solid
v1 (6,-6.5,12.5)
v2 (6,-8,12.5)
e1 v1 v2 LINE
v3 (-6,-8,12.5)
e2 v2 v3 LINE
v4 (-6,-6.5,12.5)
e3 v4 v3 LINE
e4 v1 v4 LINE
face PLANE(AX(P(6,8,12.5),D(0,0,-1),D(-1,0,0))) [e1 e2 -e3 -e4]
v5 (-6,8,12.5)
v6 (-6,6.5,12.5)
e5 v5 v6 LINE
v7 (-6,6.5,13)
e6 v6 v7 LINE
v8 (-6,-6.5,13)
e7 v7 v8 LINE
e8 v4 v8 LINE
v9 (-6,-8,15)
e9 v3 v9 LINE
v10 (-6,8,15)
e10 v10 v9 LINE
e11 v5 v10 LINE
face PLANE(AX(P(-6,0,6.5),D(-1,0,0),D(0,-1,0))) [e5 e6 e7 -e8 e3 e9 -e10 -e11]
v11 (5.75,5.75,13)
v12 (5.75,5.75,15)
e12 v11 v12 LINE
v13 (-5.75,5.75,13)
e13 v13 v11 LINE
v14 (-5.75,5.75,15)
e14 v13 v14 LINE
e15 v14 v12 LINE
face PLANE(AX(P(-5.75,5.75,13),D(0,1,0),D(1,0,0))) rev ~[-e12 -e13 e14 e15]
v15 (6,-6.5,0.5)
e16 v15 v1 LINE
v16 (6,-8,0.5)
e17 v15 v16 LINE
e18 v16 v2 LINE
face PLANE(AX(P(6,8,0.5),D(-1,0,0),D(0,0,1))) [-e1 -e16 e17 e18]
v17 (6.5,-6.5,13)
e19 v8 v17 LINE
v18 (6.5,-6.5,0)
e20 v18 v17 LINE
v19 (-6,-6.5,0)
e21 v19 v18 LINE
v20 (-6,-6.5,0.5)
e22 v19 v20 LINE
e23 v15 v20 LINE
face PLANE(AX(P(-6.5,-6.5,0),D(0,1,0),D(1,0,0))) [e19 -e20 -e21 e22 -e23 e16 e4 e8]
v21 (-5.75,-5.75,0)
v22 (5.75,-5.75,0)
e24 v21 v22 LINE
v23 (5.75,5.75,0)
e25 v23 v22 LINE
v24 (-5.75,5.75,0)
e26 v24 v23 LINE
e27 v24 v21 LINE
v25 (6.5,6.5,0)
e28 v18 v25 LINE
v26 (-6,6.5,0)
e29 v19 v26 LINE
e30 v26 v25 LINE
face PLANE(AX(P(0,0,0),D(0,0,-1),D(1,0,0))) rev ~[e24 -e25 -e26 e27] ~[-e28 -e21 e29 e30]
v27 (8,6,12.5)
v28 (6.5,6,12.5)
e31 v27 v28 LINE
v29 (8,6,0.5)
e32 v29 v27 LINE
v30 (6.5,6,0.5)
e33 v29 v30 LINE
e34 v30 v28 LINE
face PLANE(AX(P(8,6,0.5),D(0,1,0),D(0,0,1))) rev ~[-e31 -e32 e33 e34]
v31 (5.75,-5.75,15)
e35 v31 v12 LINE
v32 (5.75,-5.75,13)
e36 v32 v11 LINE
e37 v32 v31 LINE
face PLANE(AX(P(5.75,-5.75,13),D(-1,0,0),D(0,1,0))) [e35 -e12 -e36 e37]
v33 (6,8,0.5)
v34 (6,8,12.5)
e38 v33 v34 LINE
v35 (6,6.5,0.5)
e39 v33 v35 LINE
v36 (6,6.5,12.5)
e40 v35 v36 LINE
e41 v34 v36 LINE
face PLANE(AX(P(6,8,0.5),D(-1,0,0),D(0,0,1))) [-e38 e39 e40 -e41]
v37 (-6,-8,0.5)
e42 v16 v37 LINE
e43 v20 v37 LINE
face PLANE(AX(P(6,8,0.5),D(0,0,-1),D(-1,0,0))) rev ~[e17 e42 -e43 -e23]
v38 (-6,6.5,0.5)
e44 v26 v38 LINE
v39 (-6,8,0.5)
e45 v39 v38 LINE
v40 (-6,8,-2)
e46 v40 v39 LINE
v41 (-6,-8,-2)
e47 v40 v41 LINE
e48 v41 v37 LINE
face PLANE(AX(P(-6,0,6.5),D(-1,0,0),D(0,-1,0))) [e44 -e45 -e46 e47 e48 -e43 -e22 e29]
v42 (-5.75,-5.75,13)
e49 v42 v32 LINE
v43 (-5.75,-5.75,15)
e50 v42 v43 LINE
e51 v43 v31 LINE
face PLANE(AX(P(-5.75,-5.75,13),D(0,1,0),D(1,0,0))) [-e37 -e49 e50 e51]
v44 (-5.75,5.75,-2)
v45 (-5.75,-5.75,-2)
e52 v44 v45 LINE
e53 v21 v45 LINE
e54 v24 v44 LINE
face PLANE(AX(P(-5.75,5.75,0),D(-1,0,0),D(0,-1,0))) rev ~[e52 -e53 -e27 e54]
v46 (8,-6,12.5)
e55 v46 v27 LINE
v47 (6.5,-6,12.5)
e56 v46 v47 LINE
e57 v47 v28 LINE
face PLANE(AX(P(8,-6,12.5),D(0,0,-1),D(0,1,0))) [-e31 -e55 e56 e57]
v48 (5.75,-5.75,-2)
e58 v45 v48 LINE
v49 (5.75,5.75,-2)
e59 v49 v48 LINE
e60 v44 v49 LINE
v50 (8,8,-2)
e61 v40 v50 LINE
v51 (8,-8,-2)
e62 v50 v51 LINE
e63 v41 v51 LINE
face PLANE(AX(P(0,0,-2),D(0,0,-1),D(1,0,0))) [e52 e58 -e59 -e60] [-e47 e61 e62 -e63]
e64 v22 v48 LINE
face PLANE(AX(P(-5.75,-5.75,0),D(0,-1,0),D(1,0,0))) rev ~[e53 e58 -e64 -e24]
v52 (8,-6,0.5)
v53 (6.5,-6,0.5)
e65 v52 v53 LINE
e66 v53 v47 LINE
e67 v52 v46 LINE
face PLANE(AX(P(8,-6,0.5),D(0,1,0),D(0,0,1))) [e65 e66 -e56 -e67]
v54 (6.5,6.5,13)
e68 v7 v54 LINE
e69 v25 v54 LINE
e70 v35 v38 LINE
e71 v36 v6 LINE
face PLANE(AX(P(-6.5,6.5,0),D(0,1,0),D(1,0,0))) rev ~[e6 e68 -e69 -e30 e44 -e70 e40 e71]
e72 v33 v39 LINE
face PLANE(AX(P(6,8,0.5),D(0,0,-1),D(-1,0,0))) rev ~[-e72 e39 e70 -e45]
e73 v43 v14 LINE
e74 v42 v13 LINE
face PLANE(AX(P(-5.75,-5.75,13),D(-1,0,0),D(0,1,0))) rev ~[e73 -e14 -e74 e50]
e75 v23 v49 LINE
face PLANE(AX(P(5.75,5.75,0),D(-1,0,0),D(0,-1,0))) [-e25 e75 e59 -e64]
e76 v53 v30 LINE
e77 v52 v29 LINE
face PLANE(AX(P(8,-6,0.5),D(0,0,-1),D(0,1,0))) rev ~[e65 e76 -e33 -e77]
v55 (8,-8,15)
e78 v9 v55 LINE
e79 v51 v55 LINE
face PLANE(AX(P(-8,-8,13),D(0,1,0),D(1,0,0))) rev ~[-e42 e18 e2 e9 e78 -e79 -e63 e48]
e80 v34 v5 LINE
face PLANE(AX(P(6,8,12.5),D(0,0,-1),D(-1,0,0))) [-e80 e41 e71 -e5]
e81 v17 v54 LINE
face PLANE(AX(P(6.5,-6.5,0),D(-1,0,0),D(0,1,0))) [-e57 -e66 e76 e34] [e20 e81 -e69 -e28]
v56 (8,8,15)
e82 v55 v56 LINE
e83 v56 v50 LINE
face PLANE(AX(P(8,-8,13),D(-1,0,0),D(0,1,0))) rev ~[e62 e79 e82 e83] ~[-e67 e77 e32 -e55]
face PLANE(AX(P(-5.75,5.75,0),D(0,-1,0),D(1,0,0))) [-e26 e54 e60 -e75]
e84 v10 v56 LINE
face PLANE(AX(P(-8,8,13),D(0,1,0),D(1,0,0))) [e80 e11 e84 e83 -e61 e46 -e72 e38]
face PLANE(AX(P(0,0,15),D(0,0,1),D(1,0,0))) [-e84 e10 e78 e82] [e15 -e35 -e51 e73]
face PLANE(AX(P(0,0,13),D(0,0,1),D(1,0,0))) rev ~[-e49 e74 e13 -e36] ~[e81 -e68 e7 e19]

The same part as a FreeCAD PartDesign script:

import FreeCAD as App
import Part
import Sketcher
from FreeCAD import Vector
Q = App.Units.Quantity

doc = App.newDocument("Part")
body = doc.addObject("PartDesign::Body", "Body")

sketch1 = doc.addObject("Sketcher::SketchObject", "Sketch")
body.addObject(sketch1)
sketch1.AttachmentSupport = (doc.XY_Plane, [""])
sketch1.MapMode = "FlatFace"
sketch1.addGeometry(Part.LineSegment(Vector(-8, 8, 0), Vector(-8, -8, 0)), False)
sketch1.addGeometry(Part.LineSegment(Vector(-8, -8, 0), Vector(8, -8, 0)), False)
sketch1.addGeometry(Part.LineSegment(Vector(8, -8, 0), Vector(8, 8, 0)), False)
sketch1.addGeometry(Part.LineSegment(Vector(8, 8, 0), Vector(-8, 8, 0)), False)
sketch1.addGeometry(Part.LineSegment(Vector(6.5, -6.5, 0), Vector(-6.5, -6.5, 0)), False)
sketch1.addGeometry(Part.LineSegment(Vector(-6.5, -6.5, 0), Vector(-6.5, 6.5, 0)), False)
sketch1.addGeometry(Part.LineSegment(Vector(-6.5, 6.5, 0), Vector(6.5, 6.5, 0)), False)
sketch1.addGeometry(Part.LineSegment(Vector(6.5, 6.5, 0), Vector(6.5, -6.5, 0)), False)
sketch1.addConstraint(Sketcher.Constraint("Coincident", 0, 2, 1, 1))
sketch1.addConstraint(Sketcher.Constraint("Coincident", 1, 2, 2, 1))
sketch1.addConstraint(Sketcher.Constraint("Coincident", 2, 2, 3, 1))
sketch1.addConstraint(Sketcher.Constraint("Coincident", 3, 2, 0, 1))
sketch1.addConstraint(Sketcher.Constraint("Coincident", 4, 2, 5, 1))
sketch1.addConstraint(Sketcher.Constraint("Coincident", 5, 2, 6, 1))
sketch1.addConstraint(Sketcher.Constraint("Coincident", 6, 2, 7, 1))
sketch1.addConstraint(Sketcher.Constraint("Coincident", 7, 2, 4, 1))
sketch1.addConstraint(Sketcher.Constraint("Vertical", 0))
sketch1.addConstraint(Sketcher.Constraint("Horizontal", 1))
sketch1.addConstraint(Sketcher.Constraint("Vertical", 2))
sketch1.addConstraint(Sketcher.Constraint("Horizontal", 3))
sketch1.addConstraint(Sketcher.Constraint("Horizontal", 4))
sketch1.addConstraint(Sketcher.Constraint("Vertical", 5))
sketch1.addConstraint(Sketcher.Constraint("Horizontal", 6))
sketch1.addConstraint(Sketcher.Constraint("Vertical", 7))
sketch1.addConstraint(Sketcher.Constraint("Symmetric", 0, 2, 2, 2, -1, 1))
sketch1.addConstraint(Sketcher.Constraint("Symmetric", 4, 2, 6, 2, -1, 1))
sketch1.addConstraint(Sketcher.Constraint("Equal", 3, 0))
sketch1.addConstraint(Sketcher.Constraint("Equal", 6, 5))
sketch1.addConstraint(Sketcher.Constraint("DistanceX", 1, 1, 1, 2, Q("16 mm")))
sketch1.addConstraint(Sketcher.Constraint("DistanceX", 4, 2, 4, 1, Q("13 mm")))
pad1 = doc.addObject("PartDesign::Pad", "Pad")
body.addObject(pad1)
pad1.Profile = sketch1
pad1.Length = 13

sketch2 = doc.addObject("Sketcher::SketchObject", "Sketch001")
body.addObject(sketch2)
sketch2.AttachmentSupport = (doc.XY_Plane, [""])
sketch2.MapMode = "FlatFace"
sketch2.addGeometry(Part.LineSegment(Vector(-8, -8, 0), Vector(-8, 8, 0)), False)
sketch2.addGeometry(Part.LineSegment(Vector(-8, 8, 0), Vector(8, 8, 0)), False)
sketch2.addGeometry(Part.LineSegment(Vector(8, 8, 0), Vector(8, -8, 0)), False)
sketch2.addGeometry(Part.LineSegment(Vector(8, -8, 0), Vector(-8, -8, 0)), False)
sketch2.addGeometry(Part.LineSegment(Vector(5.75, 5.75, 0), Vector(-5.75, 5.75, 0)), False)
sketch2.addGeometry(Part.LineSegment(Vector(-5.75, 5.75, 0), Vector(-5.75, -5.75, 0)), False)
sketch2.addGeometry(Part.LineSegment(Vector(-5.75, -5.75, 0), Vector(5.75, -5.75, 0)), False)
sketch2.addGeometry(Part.LineSegment(Vector(5.75, -5.75, 0), Vector(5.75, 5.75, 0)), False)
sketch2.addConstraint(Sketcher.Constraint("Coincident", 0, 2, 1, 1))
sketch2.addConstraint(Sketcher.Constraint("Coincident", 1, 2, 2, 1))
sketch2.addConstraint(Sketcher.Constraint("Coincident", 2, 2, 3, 1))
sketch2.addConstraint(Sketcher.Constraint("Coincident", 3, 2, 0, 1))
sketch2.addConstraint(Sketcher.Constraint("Coincident", 4, 2, 5, 1))
sketch2.addConstraint(Sketcher.Constraint("Coincident", 5, 2, 6, 1))
sketch2.addConstraint(Sketcher.Constraint("Coincident", 6, 2, 7, 1))
sketch2.addConstraint(Sketcher.Constraint("Coincident", 7, 2, 4, 1))
sketch2.addConstraint(Sketcher.Constraint("Vertical", 0))
sketch2.addConstraint(Sketcher.Constraint("Horizontal", 1))
sketch2.addConstraint(Sketcher.Constraint("Vertical", 2))
sketch2.addConstraint(Sketcher.Constraint("Horizontal", 3))
sketch2.addConstraint(Sketcher.Constraint("Horizontal", 4))
sketch2.addConstraint(Sketcher.Constraint("Vertical", 5))
sketch2.addConstraint(Sketcher.Constraint("Horizontal", 6))
sketch2.addConstraint(Sketcher.Constraint("Vertical", 7))
sketch2.addConstraint(Sketcher.Constraint("Symmetric", 0, 2, 2, 2, -1, 1))
sketch2.addConstraint(Sketcher.Constraint("Symmetric", 4, 2, 6, 2, -1, 1))
sketch2.addConstraint(Sketcher.Constraint("Equal", 3, 0))
sketch2.addConstraint(Sketcher.Constraint("Equal", 6, 5))
sketch2.addConstraint(Sketcher.Constraint("DistanceX", 1, 1, 1, 2, Q("16 mm")))
sketch2.addConstraint(Sketcher.Constraint("DistanceX", 4, 2, 4, 1, Q("11.5 mm")))
pad2 = doc.addObject("PartDesign::Pad", "Pad001")
body.addObject(pad2)
pad2.Profile = sketch2
pad2.Length = 2
pad2.Reversed = True

sketch3 = doc.addObject("Sketcher::SketchObject", "Sketch002")
body.addObject(sketch3)
sketch3.AttachmentSupport = (doc.XY_Plane, [""])
sketch3.MapMode = "FlatFace"
sketch3.AttachmentOffset = App.Placement(Vector(0, 0, 13), App.Rotation())
sketch3.addGeometry(Part.LineSegment(Vector(-8, 8, 0), Vector(-8, -8, 0)), False)
sketch3.addGeometry(Part.LineSegment(Vector(-8, -8, 0), Vector(8, -8, 0)), False)
sketch3.addGeometry(Part.LineSegment(Vector(8, -8, 0), Vector(8, 8, 0)), False)
sketch3.addGeometry(Part.LineSegment(Vector(8, 8, 0), Vector(-8, 8, 0)), False)
sketch3.addGeometry(Part.LineSegment(Vector(5.75, -5.75, 0), Vector(-5.75, -5.75, 0)), False)
sketch3.addGeometry(Part.LineSegment(Vector(-5.75, -5.75, 0), Vector(-5.75, 5.75, 0)), False)
sketch3.addGeometry(Part.LineSegment(Vector(-5.75, 5.75, 0), Vector(5.75, 5.75, 0)), False)
sketch3.addGeometry(Part.LineSegment(Vector(5.75, 5.75, 0), Vector(5.75, -5.75, 0)), False)
sketch3.addConstraint(Sketcher.Constraint("Coincident", 0, 2, 1, 1))
sketch3.addConstraint(Sketcher.Constraint("Coincident", 1, 2, 2, 1))
sketch3.addConstraint(Sketcher.Constraint("Coincident", 2, 2, 3, 1))
sketch3.addConstraint(Sketcher.Constraint("Coincident", 3, 2, 0, 1))
sketch3.addConstraint(Sketcher.Constraint("Coincident", 4, 2, 5, 1))
sketch3.addConstraint(Sketcher.Constraint("Coincident", 5, 2, 6, 1))
sketch3.addConstraint(Sketcher.Constraint("Coincident", 6, 2, 7, 1))
sketch3.addConstraint(Sketcher.Constraint("Coincident", 7, 2, 4, 1))
sketch3.addConstraint(Sketcher.Constraint("Vertical", 0))
sketch3.addConstraint(Sketcher.Constraint("Horizontal", 1))
sketch3.addConstraint(Sketcher.Constraint("Vertical", 2))
sketch3.addConstraint(Sketcher.Constraint("Horizontal", 3))
sketch3.addConstraint(Sketcher.Constraint("Horizontal", 4))
sketch3.addConstraint(Sketcher.Constraint("Vertical", 5))
sketch3.addConstraint(Sketcher.Constraint("Horizontal", 6))
sketch3.addConstraint(Sketcher.Constraint("Vertical", 7))
sketch3.addConstraint(Sketcher.Constraint("Symmetric", 0, 2, 2, 2, -1, 1))
sketch3.addConstraint(Sketcher.Constraint("Symmetric", 4, 2, 6, 2, -1, 1))
sketch3.addConstraint(Sketcher.Constraint("Equal", 3, 0))
sketch3.addConstraint(Sketcher.Constraint("Equal", 6, 5))
sketch3.addConstraint(Sketcher.Constraint("DistanceX", 1, 1, 1, 2, Q("16 mm")))
sketch3.addConstraint(Sketcher.Constraint("DistanceX", 4, 2, 4, 1, Q("11.5 mm")))
pad3 = doc.addObject("PartDesign::Pad", "Pad002")
body.addObject(pad3)
pad3.Profile = sketch3
pad3.Length = 2

sketch4 = doc.addObject("Sketcher::SketchObject", "Sketch003")
body.addObject(sketch4)
sketch4.AttachmentSupport = (doc.XZ_Plane, [""])
sketch4.MapMode = "FlatFace"
sketch4.AttachmentOffset = App.Placement(Vector(0, 0, -8), App.Rotation())
sketch4.addGeometry(Part.LineSegment(Vector(6, 12.5, 0), Vector(6, 0.5, 0)), False)
sketch4.addGeometry(Part.LineSegment(Vector(6, 0.5, 0), Vector(-6, 0.5, 0)), False)
sketch4.addGeometry(Part.LineSegment(Vector(-6, 0.5, 0), Vector(-6, 12.5, 0)), False)
sketch4.addGeometry(Part.LineSegment(Vector(-6, 12.5, 0), Vector(6, 12.5, 0)), False)
sketch4.addConstraint(Sketcher.Constraint("Coincident", 0, 2, 1, 1))
sketch4.addConstraint(Sketcher.Constraint("Coincident", 1, 2, 2, 1))
sketch4.addConstraint(Sketcher.Constraint("Coincident", 2, 2, 3, 1))
sketch4.addConstraint(Sketcher.Constraint("Coincident", 3, 2, 0, 1))
sketch4.addConstraint(Sketcher.Constraint("Vertical", 0))
sketch4.addConstraint(Sketcher.Constraint("Horizontal", 1))
sketch4.addConstraint(Sketcher.Constraint("Vertical", 2))
sketch4.addConstraint(Sketcher.Constraint("Horizontal", 3))
sketch4.addConstraint(Sketcher.Constraint("Equal", 3, 0))
sketch4.addConstraint(Sketcher.Constraint("DistanceX", 1, 2, 1, 1, Q("12 mm")))
sketch4.addConstraint(Sketcher.Constraint("DistanceX", -1, 1, 0, 2, Q("6 mm")))
sketch4.addConstraint(Sketcher.Constraint("DistanceY", -1, 1, 0, 2, Q("0.5 mm")))
pocket1 = doc.addObject("PartDesign::Pocket", "Pocket")
body.addObject(pocket1)
pocket1.Profile = sketch4
pocket1.Type = "ThroughAll"
pocket1.Reversed = True

sketch5 = doc.addObject("Sketcher::SketchObject", "Sketch004")
body.addObject(sketch5)
sketch5.AttachmentSupport = (doc.YZ_Plane, [""])
sketch5.MapMode = "FlatFace"
sketch5.AttachmentOffset = App.Placement(Vector(0, 0, 8), App.Rotation())
sketch5.addGeometry(Part.LineSegment(Vector(-6, 12.5, 0), Vector(-6, 0.5, 0)), False)
sketch5.addGeometry(Part.LineSegment(Vector(-6, 0.5, 0), Vector(6, 0.5, 0)), False)
sketch5.addGeometry(Part.LineSegment(Vector(6, 0.5, 0), Vector(6, 12.5, 0)), False)
sketch5.addGeometry(Part.LineSegment(Vector(6, 12.5, 0), Vector(-6, 12.5, 0)), False)
sketch5.addConstraint(Sketcher.Constraint("Coincident", 0, 2, 1, 1))
sketch5.addConstraint(Sketcher.Constraint("Coincident", 1, 2, 2, 1))
sketch5.addConstraint(Sketcher.Constraint("Coincident", 2, 2, 3, 1))
sketch5.addConstraint(Sketcher.Constraint("Coincident", 3, 2, 0, 1))
sketch5.addConstraint(Sketcher.Constraint("Vertical", 0))
sketch5.addConstraint(Sketcher.Constraint("Horizontal", 1))
sketch5.addConstraint(Sketcher.Constraint("Vertical", 2))
sketch5.addConstraint(Sketcher.Constraint("Horizontal", 3))
sketch5.addConstraint(Sketcher.Constraint("Equal", 3, 0))
sketch5.addConstraint(Sketcher.Constraint("DistanceX", 1, 1, 1, 2, Q("12 mm")))
sketch5.addConstraint(Sketcher.Constraint("DistanceX", 0, 2, -1, 1, Q("6 mm")))
sketch5.addConstraint(Sketcher.Constraint("DistanceY", -1, 1, 0, 2, Q("0.5 mm")))
pocket2 = doc.addObject("PartDesign::Pocket", "Pocket001")
body.addObject(pocket2)
pocket2.Profile = sketch5
pocket2.Length = 1.5

sketch6 = doc.addObject("Sketcher::SketchObject", "Sketch005")
body.addObject(sketch6)
sketch6.AttachmentSupport = (doc.YZ_Plane, [""])
sketch6.MapMode = "FlatFace"
sketch6.AttachmentOffset = App.Placement(Vector(0, 0, -8), App.Rotation())
sketch6.addGeometry(Part.LineSegment(Vector(8, 15, 0), Vector(8, -2, 0)), False)
sketch6.addGeometry(Part.LineSegment(Vector(8, -2, 0), Vector(-8, -2, 0)), False)
sketch6.addGeometry(Part.LineSegment(Vector(-8, -2, 0), Vector(-8, 15, 0)), False)
sketch6.addGeometry(Part.LineSegment(Vector(-8, 15, 0), Vector(8, 15, 0)), False)
sketch6.addConstraint(Sketcher.Constraint("Coincident", 0, 2, 1, 1))
sketch6.addConstraint(Sketcher.Constraint("Coincident", 1, 2, 2, 1))
sketch6.addConstraint(Sketcher.Constraint("Coincident", 2, 2, 3, 1))
sketch6.addConstraint(Sketcher.Constraint("Coincident", 3, 2, 0, 1))
sketch6.addConstraint(Sketcher.Constraint("Vertical", 0))
sketch6.addConstraint(Sketcher.Constraint("Horizontal", 1))
sketch6.addConstraint(Sketcher.Constraint("Vertical", 2))
sketch6.addConstraint(Sketcher.Constraint("Horizontal", 3))
sketch6.addConstraint(Sketcher.Constraint("DistanceX", 1, 2, 1, 1, Q("16 mm")))
sketch6.addConstraint(Sketcher.Constraint("DistanceY", 0, 2, 0, 1, Q("17 mm")))
sketch6.addConstraint(Sketcher.Constraint("DistanceX", -1, 1, 0, 2, Q("8 mm")))
sketch6.addConstraint(Sketcher.Constraint("DistanceY", 0, 2, -1, 1, Q("2 mm")))
pocket3 = doc.addObject("PartDesign::Pocket", "Pocket002")
body.addObject(pocket3)
pocket3.Profile = sketch6
pocket3.Length = 2
pocket3.Reversed = True

doc.recompute()
